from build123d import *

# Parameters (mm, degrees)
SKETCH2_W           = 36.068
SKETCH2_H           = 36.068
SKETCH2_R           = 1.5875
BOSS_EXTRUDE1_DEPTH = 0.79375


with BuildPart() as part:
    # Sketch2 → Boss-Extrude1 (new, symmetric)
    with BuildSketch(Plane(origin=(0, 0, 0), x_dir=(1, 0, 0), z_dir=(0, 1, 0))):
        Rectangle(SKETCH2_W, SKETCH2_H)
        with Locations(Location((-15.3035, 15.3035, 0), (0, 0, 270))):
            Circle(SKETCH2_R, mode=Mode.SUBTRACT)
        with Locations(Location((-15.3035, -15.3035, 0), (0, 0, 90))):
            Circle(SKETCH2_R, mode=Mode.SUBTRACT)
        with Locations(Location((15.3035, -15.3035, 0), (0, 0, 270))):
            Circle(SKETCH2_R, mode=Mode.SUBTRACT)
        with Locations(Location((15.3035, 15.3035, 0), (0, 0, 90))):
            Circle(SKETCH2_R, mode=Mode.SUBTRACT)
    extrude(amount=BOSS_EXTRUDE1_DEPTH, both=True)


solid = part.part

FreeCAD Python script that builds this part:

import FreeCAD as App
import Part
import Sketcher

V = App.Vector
Q = App.Units.Quantity

doc = App.newDocument("Part")
body = doc.addObject("PartDesign::Body", "Body")

# Sketch on XZ plane
sketch1 = body.newObject("Sketcher::SketchObject", "Sketch")
sketch1.AttachmentSupport = (doc.getObject("XZ_Plane"), [""])
sketch1.MapMode = "FlatFace"
sketch1.addGeometry([
    Part.LineSegment(V(-18, -18, 0), V(-18, 18, 0)),  # 0
    Part.LineSegment(V(-18, 18, 0), V(18, 18, 0)),  # 1
    Part.LineSegment(V(18, 18, 0), V(18, -18, 0)),  # 2
    Part.LineSegment(V(18, -18, 0), V(-18, -18, 0)),  # 3
    Part.Circle(V(-15.3, 15.3, 0), V(0, 0, 1), 1.6),  # 4
    Part.Circle(V(15.3, 15.3, 0), V(0, 0, 1), 1.6),  # 5
    Part.Circle(V(-15.3, -15.3, 0), V(0, 0, 1), 1.6),  # 6
    Part.Circle(V(15.3, -15.3, 0), V(0, 0, 1), 1.6),  # 7
], False)
sketch1.addConstraint([
    Sketcher.Constraint("Coincident", 0, 2, 1, 1),
    Sketcher.Constraint("Coincident", 1, 2, 2, 1),
    Sketcher.Constraint("Coincident", 2, 2, 3, 1),
    Sketcher.Constraint("Coincident", 3, 2, 0, 1),
    Sketcher.Constraint("Vertical", 0),
    Sketcher.Constraint("Horizontal", 1),
    Sketcher.Constraint("Vertical", 2),
    Sketcher.Constraint("Horizontal", 3),
    Sketcher.Constraint("Equal", 4, 5),
    Sketcher.Constraint("Equal", 5, 6),
    Sketcher.Constraint("Equal", 6, 7),
    Sketcher.Constraint("Symmetric", 5, 3, 6, 3, -1, 1),
    Sketcher.Constraint("Symmetric", 4, 3, 7, 3, -1, 1),
    Sketcher.Constraint("Symmetric", 0, 2, 2, 2, -1, 1),
    Sketcher.Constraint("Symmetric", 4, 3, 5, 3, -2),
    Sketcher.Constraint("Equal", 3, 0),
    Sketcher.Constraint("Diameter", 4, Q("0.125 in")),
    Sketcher.Constraint("DistanceX", 1, 1, 1, 2, Q("1.42 in")),
    Sketcher.Constraint("DistanceX", 4, 3, 5, 3, Q("1.205 in")),
    Sketcher.Constraint("DistanceY", 6, 3, 4, 3, Q("1.205 in")),
])
pad1 = body.newObject("PartDesign::Pad", "Pad")
pad1.Profile = sketch1
pad1.Length = Q("0.0625 in")
pad1.Midplane = True

doc.recompute()
